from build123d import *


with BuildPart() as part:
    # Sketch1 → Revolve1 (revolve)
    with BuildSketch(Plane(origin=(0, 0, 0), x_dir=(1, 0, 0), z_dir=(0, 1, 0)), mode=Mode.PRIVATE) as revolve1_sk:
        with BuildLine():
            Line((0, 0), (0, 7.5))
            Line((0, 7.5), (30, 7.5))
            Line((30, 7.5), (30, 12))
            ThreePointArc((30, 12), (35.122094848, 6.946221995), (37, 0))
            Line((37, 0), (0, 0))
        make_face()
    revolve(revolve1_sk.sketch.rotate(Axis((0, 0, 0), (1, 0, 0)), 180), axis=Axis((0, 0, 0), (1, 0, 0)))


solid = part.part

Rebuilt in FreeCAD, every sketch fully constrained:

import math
import FreeCAD as App
import Part
import Sketcher
from FreeCAD import Vector
Q = App.Units.Quantity

doc = App.newDocument("Part")
params = doc.addObject("Spreadsheet::Sheet", "Params")
for row, (alias, value) in enumerate([
    ("sketch1_width", "37 mm"),
    ("sketch1_width2", "30 mm"),
    ("sketch1_height", "7.5 mm"),
    ("sketch1_height2", "4.5 mm"),
    ("revolution_angle", "360 deg"),
], start=1):
    params.set(f"A{row}", alias)
    params.set(f"B{row}", "=" + value)
    params.setAlias(f"B{row}", alias)

body = doc.addObject("PartDesign::Body", "Body")

# Sketch on XZ plane
sketch1 = doc.addObject("Sketcher::SketchObject", "Sketch")
body.addObject(sketch1)
sketch1.AttachmentSupport = (doc.XZ_Plane, [""])
sketch1.MapMode = "FlatFace"
sketch1.addGeometry([
    Part.LineSegment(Vector(0, -7.5, 0), Vector(0, 0, 0)),  # 0
    Part.LineSegment(Vector(0, 0, 0), Vector(37, 0, 0)),  # 1
    Part.ArcOfCircle(Part.Circle(Vector(23.2, 0, 0), Vector(0, 0, 1), 13.8), math.radians(-61), math.radians(0)),  # 2
    Part.LineSegment(Vector(30, -12, 0), Vector(30, -7.5, 0)),  # 3
    Part.LineSegment(Vector(30, -7.5, 0), Vector(0, -7.5, 0)),  # 4
], False)
sketch1.addConstraint([
    Sketcher.Constraint("Coincident", 0, 2, 1, 1),
    Sketcher.Constraint("Coincident", 1, 2, 2, 2),
    Sketcher.Constraint("Coincident", 2, 1, 3, 1),
    Sketcher.Constraint("Coincident", 3, 2, 4, 1),
    Sketcher.Constraint("Coincident", 4, 2, 0, 1),
    Sketcher.Constraint("Vertical", 0),
    Sketcher.Constraint("Horizontal", 1),
    Sketcher.Constraint("Vertical", 3),
    Sketcher.Constraint("Horizontal", 4),
    Sketcher.Constraint("Coincident", 0, 2, -1, 1),
    Sketcher.Constraint("PointOnObject", 2, 3, -1),
    Sketcher.Constraint("DistanceX", 1, 1, 1, 2, Q("37 mm")),
    Sketcher.Constraint("DistanceX", 4, 2, 4, 1, Q("30 mm")),
    Sketcher.Constraint("DistanceY", 0, 1, 0, 2, Q("7.5 mm")),
    Sketcher.Constraint("DistanceY", 3, 1, 3, 2, Q("4.5 mm")),
])
sketch1.setExpression("Constraints[11]", "Params.sketch1_width")
sketch1.setExpression("Constraints[12]", "Params.sketch1_width2")
sketch1.setExpression("Constraints[13]", "Params.sketch1_height")
sketch1.setExpression("Constraints[14]", "Params.sketch1_height2")
revolution = doc.addObject("PartDesign::Revolution", "Revolution")
body.addObject(revolution)
revolution.Profile = sketch1
revolution.ReferenceAxis = (sketch1, ["H_Axis"])
revolution.setExpression("Angle", "Params.revolution_angle")

doc.recompute()
